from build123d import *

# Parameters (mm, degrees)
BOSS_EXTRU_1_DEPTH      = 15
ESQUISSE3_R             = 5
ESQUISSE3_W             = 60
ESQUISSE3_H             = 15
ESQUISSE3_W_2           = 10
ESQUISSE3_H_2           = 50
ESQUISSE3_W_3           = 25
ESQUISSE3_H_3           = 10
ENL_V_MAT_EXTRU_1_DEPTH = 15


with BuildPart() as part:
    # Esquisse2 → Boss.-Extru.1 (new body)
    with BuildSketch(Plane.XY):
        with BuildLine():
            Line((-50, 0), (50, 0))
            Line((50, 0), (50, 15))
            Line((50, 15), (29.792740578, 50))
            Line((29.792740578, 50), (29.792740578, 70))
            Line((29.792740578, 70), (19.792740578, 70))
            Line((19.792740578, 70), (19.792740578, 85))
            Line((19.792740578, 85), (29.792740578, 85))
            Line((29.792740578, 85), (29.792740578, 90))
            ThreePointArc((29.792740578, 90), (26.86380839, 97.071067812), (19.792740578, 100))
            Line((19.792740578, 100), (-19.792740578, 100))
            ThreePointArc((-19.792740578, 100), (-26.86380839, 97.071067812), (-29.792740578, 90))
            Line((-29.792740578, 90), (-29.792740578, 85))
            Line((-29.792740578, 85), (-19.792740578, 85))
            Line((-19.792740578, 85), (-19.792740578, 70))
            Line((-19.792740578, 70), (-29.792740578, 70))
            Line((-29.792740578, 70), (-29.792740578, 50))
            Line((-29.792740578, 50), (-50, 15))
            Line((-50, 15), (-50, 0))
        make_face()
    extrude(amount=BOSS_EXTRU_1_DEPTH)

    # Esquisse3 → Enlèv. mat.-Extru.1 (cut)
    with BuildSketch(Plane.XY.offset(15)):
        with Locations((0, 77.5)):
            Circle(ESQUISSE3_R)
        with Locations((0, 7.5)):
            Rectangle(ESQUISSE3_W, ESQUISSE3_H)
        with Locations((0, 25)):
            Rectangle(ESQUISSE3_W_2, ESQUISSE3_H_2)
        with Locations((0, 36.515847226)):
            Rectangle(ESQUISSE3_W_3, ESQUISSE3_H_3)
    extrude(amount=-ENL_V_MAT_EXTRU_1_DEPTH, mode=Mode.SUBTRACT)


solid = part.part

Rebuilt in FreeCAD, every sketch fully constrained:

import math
import FreeCAD as App
import Part
import Sketcher
from FreeCAD import Vector
Q = App.Units.Quantity

doc = App.newDocument("Part")
body = doc.addObject("PartDesign::Body", "Body")

# Sketch on XY plane
sketch1 = body.newObject("Sketcher::SketchObject", "Sketch")
sketch1.AttachmentSupport = (doc.getObject("XY_Plane"), [""])
sketch1.MapMode = "FlatFace"
sketch1.addGeometry(Part.LineSegment(Vector(-50, 0, 0), Vector(50, 0, 0)), False)
sketch1.addGeometry(Part.LineSegment(Vector(50, 0, 0), Vector(50, 15, 0)), False)
sketch1.addGeometry(Part.LineSegment(Vector(50, 15, 0), Vector(29.792741, 50, 0)), False)
sketch1.addGeometry(Part.LineSegment(Vector(29.792741, 50, 0), Vector(29.792741, 70, 0)), False)
sketch1.addGeometry(Part.LineSegment(Vector(29.792741, 70, 0), Vector(19.792741, 70, 0)), False)
sketch1.addGeometry(Part.LineSegment(Vector(19.792741, 70, 0), Vector(19.792741, 85, 0)), False)
sketch1.addGeometry(Part.LineSegment(Vector(19.792741, 85, 0), Vector(29.792741, 85, 0)), False)
sketch1.addGeometry(Part.LineSegment(Vector(29.792741, 85, 0), Vector(29.792741, 90, 0)), False)
sketch1.addGeometry(Part.ArcOfCircle(Part.Circle(Vector(19.792741, 90, 0), Vector(0, 0, 1), 10), math.radians(0), math.radians(90)), False)
sketch1.addGeometry(Part.LineSegment(Vector(19.792741, 100, 0), Vector(-19.792741, 100, 0)), False)
sketch1.addGeometry(Part.ArcOfCircle(Part.Circle(Vector(-19.792741, 90, 0), Vector(0, 0, 1), 10), math.radians(90), math.radians(180)), False)
sketch1.addGeometry(Part.LineSegment(Vector(-29.792741, 90, 0), Vector(-29.792741, 85, 0)), False)
sketch1.addGeometry(Part.LineSegment(Vector(-29.792741, 85, 0), Vector(-19.792741, 85, 0)), False)
sketch1.addGeometry(Part.LineSegment(Vector(-19.792741, 85, 0), Vector(-19.792741, 70, 0)), False)
sketch1.addGeometry(Part.LineSegment(Vector(-19.792741, 70, 0), Vector(-29.792741, 70, 0)), False)
sketch1.addGeometry(Part.LineSegment(Vector(-29.792741, 70, 0), Vector(-29.792741, 50, 0)), False)
sketch1.addGeometry(Part.LineSegment(Vector(-29.792741, 50, 0), Vector(-50, 15, 0)), False)
sketch1.addGeometry(Part.LineSegment(Vector(-50, 15, 0), Vector(-50, 0, 0)), False)
sketch1.addConstraint(Sketcher.Constraint("Coincident", 0, 2, 1, 1))
sketch1.addConstraint(Sketcher.Constraint("Coincident", 1, 2, 2, 1))
sketch1.addConstraint(Sketcher.Constraint("Coincident", 2, 2, 3, 1))
sketch1.addConstraint(Sketcher.Constraint("Coincident", 3, 2, 4, 1))
sketch1.addConstraint(Sketcher.Constraint("Coincident", 4, 2, 5, 1))
sketch1.addConstraint(Sketcher.Constraint("Coincident", 5, 2, 6, 1))
sketch1.addConstraint(Sketcher.Constraint("Coincident", 6, 2, 7, 1))
sketch1.addConstraint(Sketcher.Constraint("Tangent", 7, 2, 8, 1))
sketch1.addConstraint(Sketcher.Constraint("Tangent", 8, 2, 9, 1))
sketch1.addConstraint(Sketcher.Constraint("Tangent", 9, 2, 10, 1))
sketch1.addConstraint(Sketcher.Constraint("Tangent", 10, 2, 11, 1))
sketch1.addConstraint(Sketcher.Constraint("Coincident", 11, 2, 12, 1))
sketch1.addConstraint(Sketcher.Constraint("Coincident", 12, 2, 13, 1))
sketch1.addConstraint(Sketcher.Constraint("Coincident", 13, 2, 14, 1))
sketch1.addConstraint(Sketcher.Constraint("Coincident", 14, 2, 15, 1))
sketch1.addConstraint(Sketcher.Constraint("Coincident", 15, 2, 16, 1))
sketch1.addConstraint(Sketcher.Constraint("Coincident", 16, 2, 17, 1))
sketch1.addConstraint(Sketcher.Constraint("Coincident", 17, 2, 0, 1))
sketch1.addConstraint(Sketcher.Constraint("Horizontal", 0))
sketch1.addConstraint(Sketcher.Constraint("Vertical", 1))
sketch1.addConstraint(Sketcher.Constraint("Vertical", 3))
sketch1.addConstraint(Sketcher.Constraint("Horizontal", 4))
sketch1.addConstraint(Sketcher.Constraint("Vertical", 5))
sketch1.addConstraint(Sketcher.Constraint("Horizontal", 6))
sketch1.addConstraint(Sketcher.Constraint("Vertical", 7))
sketch1.addConstraint(Sketcher.Constraint("Horizontal", 9))
sketch1.addConstraint(Sketcher.Constraint("Vertical", 11))
sketch1.addConstraint(Sketcher.Constraint("Horizontal", 12))
sketch1.addConstraint(Sketcher.Constraint("Vertical", 13))
sketch1.addConstraint(Sketcher.Constraint("Horizontal", 14))
sketch1.addConstraint(Sketcher.Constraint("Vertical", 15))
sketch1.addConstraint(Sketcher.Constraint("Vertical", 17))
sketch1.addConstraint(Sketcher.Constraint("Equal", 8, 10))
sketch1.addConstraint(Sketcher.Constraint("Symmetric", 0, 2, 17, 2, -1, 1))
sketch1.addConstraint(Sketcher.Constraint("Symmetric", 6, 2, 11, 2, -2))
sketch1.addConstraint(Sketcher.Constraint("Symmetric", 4, 2, 13, 2, -2))
sketch1.addConstraint(Sketcher.Constraint("Symmetric", 2, 2, 15, 2, -2))
sketch1.addConstraint(Sketcher.Constraint("Horizontal", 1, 2, 16, 2))
sketch1.addConstraint(Sketcher.Constraint("Vertical", 8, 3, 4, 2))
sketch1.addConstraint(Sketcher.Constraint("Vertical", 3, 2, 6, 2))
sketch1.addConstraint(Sketcher.Constraint("Equal", 1, 5))
sketch1.addConstraint(Sketcher.Constraint("Radius", 8, Q("10 mm")))
sketch1.addConstraint(Sketcher.Constraint("DistanceX", 0, 1, 0, 2, Q("100 mm")))
sketch1.addConstraint(Sketcher.Constraint("DistanceY", 1, 1, 1, 2, Q("15 mm")))
sketch1.addConstraint(Sketcher.Constraint("DistanceY", 3, 1, 3, 2, Q("20 mm")))
sketch1.addConstraint(Sketcher.Constraint("DistanceY", 7, 1, 7, 2, Q("5 mm")))
sketch1.addConstraint(Sketcher.Constraint("Angle", 2, Q("120 deg")))
sketch1.addConstraint(Sketcher.Constraint("DistanceY", -1, 1, 8, 3, Q("90 mm")))
pad1 = body.newObject("PartDesign::Pad", "Pad")
pad1.Profile = sketch1
pad1.Length = 15

# Sketch on XY plane
sketch2 = body.newObject("Sketcher::SketchObject", "Sketch001")
sketch2.AttachmentSupport = (doc.getObject("XY_Plane"), [""])
sketch2.MapMode = "FlatFace"
sketch2.AttachmentOffset = App.Placement(Vector(0, 0, 15), App.Rotation())
sketch2.addGeometry(Part.Circle(Vector(0, 77.5, 0), Vector(0, 0, 1), 5), False)
sketch2.addGeometry(Part.LineSegment(Vector(-30, 15, 0), Vector(-30, 0, 0)), False)
sketch2.addGeometry(Part.LineSegment(Vector(-30, 0, 0), Vector(30, 0, 0)), False)
sketch2.addGeometry(Part.LineSegment(Vector(30, 0, 0), Vector(30, 15, 0)), False)
sketch2.addGeometry(Part.LineSegment(Vector(30, 15, 0), Vector(5, 15, 0)), False)
sketch2.addGeometry(Part.LineSegment(Vector(5, 15, 0), Vector(5, 31.515847, 0)), False)
sketch2.addGeometry(Part.LineSegment(Vector(5, 31.515847, 0), Vector(12.5, 31.515847, 0)), False)
sketch2.addGeometry(Part.LineSegment(Vector(12.5, 31.515847, 0), Vector(12.5, 41.515847, 0)), False)
sketch2.addGeometry(Part.LineSegment(Vector(12.5, 41.515847, 0), Vector(5, 41.515847, 0)), False)
sketch2.addGeometry(Part.LineSegment(Vector(5, 41.515847, 0), Vector(5, 50, 0)), False)
sketch2.addGeometry(Part.LineSegment(Vector(5, 50, 0), Vector(-5, 50, 0)), False)
sketch2.addGeometry(Part.LineSegment(Vector(-5, 50, 0), Vector(-5, 41.515847, 0)), False)
sketch2.addGeometry(Part.LineSegment(Vector(-5, 41.515847, 0), Vector(-12.5, 41.515847, 0)), False)
sketch2.addGeometry(Part.LineSegment(Vector(-12.5, 41.515847, 0), Vector(-12.5, 31.515847, 0)), False)
sketch2.addGeometry(Part.LineSegment(Vector(-12.5, 31.515847, 0), Vector(-5, 31.515847, 0)), False)
sketch2.addGeometry(Part.LineSegment(Vector(-5, 31.515847, 0), Vector(-5, 15, 0)), False)
sketch2.addGeometry(Part.LineSegment(Vector(-5, 15, 0), Vector(-30, 15, 0)), False)
sketch2.addConstraint(Sketcher.Constraint("Coincident", 1, 2, 2, 1))
sketch2.addConstraint(Sketcher.Constraint("Coincident", 2, 2, 3, 1))
sketch2.addConstraint(Sketcher.Constraint("Coincident", 3, 2, 4, 1))
sketch2.addConstraint(Sketcher.Constraint("Coincident", 4, 2, 5, 1))
sketch2.addConstraint(Sketcher.Constraint("Coincident", 5, 2, 6, 1))
sketch2.addConstraint(Sketcher.Constraint("Coincident", 6, 2, 7, 1))
sketch2.addConstraint(Sketcher.Constraint("Coincident", 7, 2, 8, 1))
sketch2.addConstraint(Sketcher.Constraint("Coincident", 8, 2, 9, 1))
sketch2.addConstraint(Sketcher.Constraint("Coincident", 9, 2, 10, 1))
sketch2.addConstraint(Sketcher.Constraint("Coincident", 10, 2, 11, 1))
sketch2.addConstraint(Sketcher.Constraint("Coincident", 11, 2, 12, 1))
sketch2.addConstraint(Sketcher.Constraint("Coincident", 12, 2, 13, 1))
sketch2.addConstraint(Sketcher.Constraint("Coincident", 13, 2, 14, 1))
sketch2.addConstraint(Sketcher.Constraint("Coincident", 14, 2, 15, 1))
sketch2.addConstraint(Sketcher.Constraint("Coincident", 15, 2, 16, 1))
sketch2.addConstraint(Sketcher.Constraint("Coincident", 16, 2, 1, 1))
sketch2.addConstraint(Sketcher.Constraint("Vertical", 1))
sketch2.addConstraint(Sketcher.Constraint("Horizontal", 2))
sketch2.addConstraint(Sketcher.Constraint("Vertical", 3))
sketch2.addConstraint(Sketcher.Constraint("Horizontal", 4))
sketch2.addConstraint(Sketcher.Constraint("Vertical", 5))
sketch2.addConstraint(Sketcher.Constraint("Horizontal", 6))
sketch2.addConstraint(Sketcher.Constraint("Vertical", 7))
sketch2.addConstraint(Sketcher.Constraint("Horizontal", 8))
sketch2.addConstraint(Sketcher.Constraint("Vertical", 9))
sketch2.addConstraint(Sketcher.Constraint("Horizontal", 10))
sketch2.addConstraint(Sketcher.Constraint("Vertical", 11))
sketch2.addConstraint(Sketcher.Constraint("Horizontal", 12))
sketch2.addConstraint(Sketcher.Constraint("Vertical", 13))
sketch2.addConstraint(Sketcher.Constraint("Horizontal", 14))
sketch2.addConstraint(Sketcher.Constraint("Vertical", 15))
sketch2.addConstraint(Sketcher.Constraint("Horizontal", 16))
sketch2.addConstraint(Sketcher.Constraint("Symmetric", 1, 2, 2, 2, -1, 1))
sketch2.addConstraint(Sketcher.Constraint("Symmetric", 8, 2, 11, 2, -2))
sketch2.addConstraint(Sketcher.Constraint("Symmetric", 6, 2, 13, 2, -2))
sketch2.addConstraint(Sketcher.Constraint("Symmetric", 4, 2, 15, 2, -2))
sketch2.addConstraint(Sketcher.Constraint("PointOnObject", 0, 3, -2))
sketch2.addConstraint(Sketcher.Constraint("Vertical", 5, 2, 8, 2))
sketch2.addConstraint(Sketcher.Constraint("Equal", 10, 7))
sketch2.addConstraint(Sketcher.Constraint("Diameter", 0, Q("10 mm")))
sketch2.addConstraint(Sketcher.Constraint("DistanceX", 2, 1, 2, 2, Q("60 mm")))
sketch2.addConstraint(Sketcher.Constraint("DistanceX", 4, 2, 4, 1, Q("25 mm")))
sketch2.addConstraint(Sketcher.Constraint("DistanceY", 1, 2, 1, 1, Q("15 mm")))
sketch2.addConstraint(Sketcher.Constraint("DistanceX", 6, 1, 6, 2, Q("7.5 mm")))
sketch2.addConstraint(Sketcher.Constraint("DistanceY", -1, 1, 9, 2, Q("50 mm")))
sketch2.addConstraint(Sketcher.Constraint("DistanceY", -1, 1, 0, 3, Q("77.5 mm")))
sketch2.addConstraint(Sketcher.Constraint("DistanceY", 5, 1, 5, 2, Q("16.515847 mm")))
pocket1 = body.newObject("PartDesign::Pocket", "Pocket")
pocket1.Profile = sketch2
pocket1.Length = 15

doc.recompute()
